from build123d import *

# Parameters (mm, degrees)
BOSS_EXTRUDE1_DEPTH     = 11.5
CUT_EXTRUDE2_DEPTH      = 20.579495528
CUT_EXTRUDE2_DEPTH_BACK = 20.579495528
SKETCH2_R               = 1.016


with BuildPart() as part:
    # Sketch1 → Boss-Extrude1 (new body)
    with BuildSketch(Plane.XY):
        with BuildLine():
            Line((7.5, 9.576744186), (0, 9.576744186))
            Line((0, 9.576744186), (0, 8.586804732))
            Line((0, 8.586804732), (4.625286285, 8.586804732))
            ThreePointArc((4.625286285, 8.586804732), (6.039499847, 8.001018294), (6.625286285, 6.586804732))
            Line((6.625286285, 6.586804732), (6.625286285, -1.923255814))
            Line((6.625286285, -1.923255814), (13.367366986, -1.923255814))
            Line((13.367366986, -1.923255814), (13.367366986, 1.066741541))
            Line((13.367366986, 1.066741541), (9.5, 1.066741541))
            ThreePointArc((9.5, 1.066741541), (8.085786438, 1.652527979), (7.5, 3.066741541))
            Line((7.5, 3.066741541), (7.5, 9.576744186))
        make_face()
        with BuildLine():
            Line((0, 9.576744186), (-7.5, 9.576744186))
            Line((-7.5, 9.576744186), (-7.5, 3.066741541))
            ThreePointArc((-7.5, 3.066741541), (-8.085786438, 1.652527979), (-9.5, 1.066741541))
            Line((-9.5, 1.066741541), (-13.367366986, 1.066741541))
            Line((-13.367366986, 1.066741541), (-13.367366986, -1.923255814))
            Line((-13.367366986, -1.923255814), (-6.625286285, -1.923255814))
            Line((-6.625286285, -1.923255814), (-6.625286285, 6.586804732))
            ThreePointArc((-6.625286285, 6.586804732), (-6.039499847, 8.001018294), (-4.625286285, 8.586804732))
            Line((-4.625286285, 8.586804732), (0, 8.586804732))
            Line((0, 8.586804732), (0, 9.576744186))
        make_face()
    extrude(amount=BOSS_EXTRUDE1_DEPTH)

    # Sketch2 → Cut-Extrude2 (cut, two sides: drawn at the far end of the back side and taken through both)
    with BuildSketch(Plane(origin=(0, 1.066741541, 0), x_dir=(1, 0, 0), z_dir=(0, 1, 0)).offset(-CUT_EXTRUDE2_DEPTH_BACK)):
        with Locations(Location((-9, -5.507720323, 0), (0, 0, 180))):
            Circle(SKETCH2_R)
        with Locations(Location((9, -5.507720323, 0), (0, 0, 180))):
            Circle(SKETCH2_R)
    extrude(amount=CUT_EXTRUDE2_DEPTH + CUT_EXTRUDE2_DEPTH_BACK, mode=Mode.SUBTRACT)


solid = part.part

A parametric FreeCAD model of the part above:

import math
import FreeCAD as App
import Part
import Sketcher
from FreeCAD import Vector
Q = App.Units.Quantity

doc = App.newDocument("Part")
body = doc.addObject("PartDesign::Body", "Body")

# Sketch on XY plane
sketch1 = body.newObject("Sketcher::SketchObject", "Sketch")
sketch1.AttachmentSupport = (doc.getObject("XY_Plane"), [""])
sketch1.MapMode = "FlatFace"
sketch1.addGeometry([
    Part.LineSegment(Vector(7.5, 9.6, 0), Vector(-7.5, 9.6, 0)),  # 0
    Part.LineSegment(Vector(-7.5, 9.6, 0), Vector(-7.5, 3.1, 0)),  # 1
    Part.ArcOfCircle(Part.Circle(Vector(-9.5, 3.1, 0), Vector(0, 0, 1), 2), math.radians(-90), math.radians(0)),  # 2
    Part.LineSegment(Vector(-9.5, 1.1, 0), Vector(-13.4, 1.1, 0)),  # 3
    Part.LineSegment(Vector(-13.4, 1.1, 0), Vector(-13.4, -1.9, 0)),  # 4
    Part.LineSegment(Vector(-13.4, -1.9, 0), Vector(-6.6, -1.9, 0)),  # 5
    Part.LineSegment(Vector(-6.6, -1.9, 0), Vector(-6.6, 6.6, 0)),  # 6
    Part.ArcOfCircle(Part.Circle(Vector(-4.6, 6.6, 0), Vector(0, 0, 1), 2), math.radians(90), math.radians(180)),  # 7
    Part.LineSegment(Vector(-4.6, 8.6, 0), Vector(4.6, 8.6, 0)),  # 8
    Part.ArcOfCircle(Part.Circle(Vector(4.6, 6.6, 0), Vector(0, 0, 1), 2), math.radians(0), math.radians(90)),  # 9
    Part.LineSegment(Vector(6.6, 6.6, 0), Vector(6.6, -1.9, 0)),  # 10
    Part.LineSegment(Vector(6.6, -1.9, 0), Vector(13.4, -1.9, 0)),  # 11
    Part.LineSegment(Vector(13.4, -1.9, 0), Vector(13.4, 1.1, 0)),  # 12
    Part.LineSegment(Vector(13.4, 1.1, 0), Vector(9.5, 1.1, 0)),  # 13
    Part.ArcOfCircle(Part.Circle(Vector(9.5, 3.1, 0), Vector(0, 0, 1), 2), math.radians(-180), math.radians(-90)),  # 14
    Part.LineSegment(Vector(7.5, 3.1, 0), Vector(7.5, 9.6, 0)),  # 15
], False)
sketch1.addConstraint([
    Sketcher.Constraint("Coincident", 0, 2, 1, 1),
    Sketcher.Constraint("Tangent", 1, 2, 2, 2),
    Sketcher.Constraint("Tangent", 2, 1, 3, 1),
    Sketcher.Constraint("Coincident", 3, 2, 4, 1),
    Sketcher.Constraint("Coincident", 4, 2, 5, 1),
    Sketcher.Constraint("Coincident", 5, 2, 6, 1),
    Sketcher.Constraint("Tangent", 6, 2, 7, 2),
    Sketcher.Constraint("Tangent", 7, 1, 8, 1),
    Sketcher.Constraint("Tangent", 8, 2, 9, 2),
    Sketcher.Constraint("Tangent", 9, 1, 10, 1),
    Sketcher.Constraint("Coincident", 10, 2, 11, 1),
    Sketcher.Constraint("Coincident", 11, 2, 12, 1),
    Sketcher.Constraint("Coincident", 12, 2, 13, 1),
    Sketcher.Constraint("Tangent", 13, 2, 14, 2),
    Sketcher.Constraint("Tangent", 14, 1, 15, 1),
    Sketcher.Constraint("Coincident", 15, 2, 0, 1),
    Sketcher.Constraint("Horizontal", 0),
    Sketcher.Constraint("Vertical", 1),
    Sketcher.Constraint("Horizontal", 3),
    Sketcher.Constraint("Vertical", 4),
    Sketcher.Constraint("Horizontal", 5),
    Sketcher.Constraint("Vertical", 6),
    Sketcher.Constraint("Horizontal", 8),
    Sketcher.Constraint("Vertical", 10),
    Sketcher.Constraint("Horizontal", 11),
    Sketcher.Constraint("Vertical", 12),
    Sketcher.Constraint("Horizontal", 13),
    Sketcher.Constraint("Vertical", 15),
    Sketcher.Constraint("Equal", 2, 7),
    Sketcher.Constraint("Equal", 7, 9),
    Sketcher.Constraint("Equal", 9, 14),
    Sketcher.Constraint("Symmetric", 2, 3, 14, 3, -2),
    Sketcher.Constraint("Symmetric", 5, 2, 10, 2, -2),
    Sketcher.Constraint("Equal", 5, 11),
    Sketcher.Constraint("Radius", 2, Q("2 mm")),
    Sketcher.Constraint("DistanceX", 0, 2, 0, 1, Q("15 mm")),
    Sketcher.Constraint("DistanceX", 5, 1, 5, 2, Q("6.742081 mm")),
    Sketcher.Constraint("DistanceY", 6, 1, 6, 2, Q("8.510061 mm")),
    Sketcher.Constraint("DistanceX", 3, 2, 3, 1, Q("3.867367 mm")),
    Sketcher.Constraint("DistanceY", 1, 2, 1, 1, Q("6.510003 mm")),
    Sketcher.Constraint("DistanceY", 4, 2, 4, 1, Q("2.989997 mm")),
    Sketcher.Constraint("DistanceY", -1, 1, 2, 3, Q("3.066742 mm")),
])
pad1 = body.newObject("PartDesign::Pad", "Pad")
pad1.Profile = sketch1
pad1.Length = 11.5

# Sketch on XZ plane
sketch2 = body.newObject("Sketcher::SketchObject", "Sketch001")
sketch2.AttachmentSupport = (doc.getObject("XZ_Plane"), [""])
sketch2.MapMode = "FlatFace"
sketch2.AttachmentOffset = App.Placement(Vector(0, 0, -1.066742), App.Rotation())
sketch2.addGeometry([
    Part.Circle(Vector(-9, 5.5, 0), Vector(0, 0, 1), 1),
    Part.Circle(Vector(9, 5.5, 0), Vector(0, 0, 1), 1),
], False)
sketch2.addConstraint([
    Sketcher.Constraint("Equal", 0, 1),
    Sketcher.Constraint("Symmetric", 0, 3, 1, 3, -2),
    Sketcher.Constraint("Diameter", 0, Q("2.032 mm")),
    Sketcher.Constraint("DistanceX", 0, 3, -1, 1, Q("9 mm")),
    Sketcher.Constraint("DistanceY", -1, 1, 0, 3, Q("5.50772 mm")),
])
pocket1 = body.newObject("PartDesign::Pocket", "Pocket")
pocket1.Profile = sketch2
pocket1.Type = "ThroughAll"
pocket1.Midplane = True

doc.recompute()
